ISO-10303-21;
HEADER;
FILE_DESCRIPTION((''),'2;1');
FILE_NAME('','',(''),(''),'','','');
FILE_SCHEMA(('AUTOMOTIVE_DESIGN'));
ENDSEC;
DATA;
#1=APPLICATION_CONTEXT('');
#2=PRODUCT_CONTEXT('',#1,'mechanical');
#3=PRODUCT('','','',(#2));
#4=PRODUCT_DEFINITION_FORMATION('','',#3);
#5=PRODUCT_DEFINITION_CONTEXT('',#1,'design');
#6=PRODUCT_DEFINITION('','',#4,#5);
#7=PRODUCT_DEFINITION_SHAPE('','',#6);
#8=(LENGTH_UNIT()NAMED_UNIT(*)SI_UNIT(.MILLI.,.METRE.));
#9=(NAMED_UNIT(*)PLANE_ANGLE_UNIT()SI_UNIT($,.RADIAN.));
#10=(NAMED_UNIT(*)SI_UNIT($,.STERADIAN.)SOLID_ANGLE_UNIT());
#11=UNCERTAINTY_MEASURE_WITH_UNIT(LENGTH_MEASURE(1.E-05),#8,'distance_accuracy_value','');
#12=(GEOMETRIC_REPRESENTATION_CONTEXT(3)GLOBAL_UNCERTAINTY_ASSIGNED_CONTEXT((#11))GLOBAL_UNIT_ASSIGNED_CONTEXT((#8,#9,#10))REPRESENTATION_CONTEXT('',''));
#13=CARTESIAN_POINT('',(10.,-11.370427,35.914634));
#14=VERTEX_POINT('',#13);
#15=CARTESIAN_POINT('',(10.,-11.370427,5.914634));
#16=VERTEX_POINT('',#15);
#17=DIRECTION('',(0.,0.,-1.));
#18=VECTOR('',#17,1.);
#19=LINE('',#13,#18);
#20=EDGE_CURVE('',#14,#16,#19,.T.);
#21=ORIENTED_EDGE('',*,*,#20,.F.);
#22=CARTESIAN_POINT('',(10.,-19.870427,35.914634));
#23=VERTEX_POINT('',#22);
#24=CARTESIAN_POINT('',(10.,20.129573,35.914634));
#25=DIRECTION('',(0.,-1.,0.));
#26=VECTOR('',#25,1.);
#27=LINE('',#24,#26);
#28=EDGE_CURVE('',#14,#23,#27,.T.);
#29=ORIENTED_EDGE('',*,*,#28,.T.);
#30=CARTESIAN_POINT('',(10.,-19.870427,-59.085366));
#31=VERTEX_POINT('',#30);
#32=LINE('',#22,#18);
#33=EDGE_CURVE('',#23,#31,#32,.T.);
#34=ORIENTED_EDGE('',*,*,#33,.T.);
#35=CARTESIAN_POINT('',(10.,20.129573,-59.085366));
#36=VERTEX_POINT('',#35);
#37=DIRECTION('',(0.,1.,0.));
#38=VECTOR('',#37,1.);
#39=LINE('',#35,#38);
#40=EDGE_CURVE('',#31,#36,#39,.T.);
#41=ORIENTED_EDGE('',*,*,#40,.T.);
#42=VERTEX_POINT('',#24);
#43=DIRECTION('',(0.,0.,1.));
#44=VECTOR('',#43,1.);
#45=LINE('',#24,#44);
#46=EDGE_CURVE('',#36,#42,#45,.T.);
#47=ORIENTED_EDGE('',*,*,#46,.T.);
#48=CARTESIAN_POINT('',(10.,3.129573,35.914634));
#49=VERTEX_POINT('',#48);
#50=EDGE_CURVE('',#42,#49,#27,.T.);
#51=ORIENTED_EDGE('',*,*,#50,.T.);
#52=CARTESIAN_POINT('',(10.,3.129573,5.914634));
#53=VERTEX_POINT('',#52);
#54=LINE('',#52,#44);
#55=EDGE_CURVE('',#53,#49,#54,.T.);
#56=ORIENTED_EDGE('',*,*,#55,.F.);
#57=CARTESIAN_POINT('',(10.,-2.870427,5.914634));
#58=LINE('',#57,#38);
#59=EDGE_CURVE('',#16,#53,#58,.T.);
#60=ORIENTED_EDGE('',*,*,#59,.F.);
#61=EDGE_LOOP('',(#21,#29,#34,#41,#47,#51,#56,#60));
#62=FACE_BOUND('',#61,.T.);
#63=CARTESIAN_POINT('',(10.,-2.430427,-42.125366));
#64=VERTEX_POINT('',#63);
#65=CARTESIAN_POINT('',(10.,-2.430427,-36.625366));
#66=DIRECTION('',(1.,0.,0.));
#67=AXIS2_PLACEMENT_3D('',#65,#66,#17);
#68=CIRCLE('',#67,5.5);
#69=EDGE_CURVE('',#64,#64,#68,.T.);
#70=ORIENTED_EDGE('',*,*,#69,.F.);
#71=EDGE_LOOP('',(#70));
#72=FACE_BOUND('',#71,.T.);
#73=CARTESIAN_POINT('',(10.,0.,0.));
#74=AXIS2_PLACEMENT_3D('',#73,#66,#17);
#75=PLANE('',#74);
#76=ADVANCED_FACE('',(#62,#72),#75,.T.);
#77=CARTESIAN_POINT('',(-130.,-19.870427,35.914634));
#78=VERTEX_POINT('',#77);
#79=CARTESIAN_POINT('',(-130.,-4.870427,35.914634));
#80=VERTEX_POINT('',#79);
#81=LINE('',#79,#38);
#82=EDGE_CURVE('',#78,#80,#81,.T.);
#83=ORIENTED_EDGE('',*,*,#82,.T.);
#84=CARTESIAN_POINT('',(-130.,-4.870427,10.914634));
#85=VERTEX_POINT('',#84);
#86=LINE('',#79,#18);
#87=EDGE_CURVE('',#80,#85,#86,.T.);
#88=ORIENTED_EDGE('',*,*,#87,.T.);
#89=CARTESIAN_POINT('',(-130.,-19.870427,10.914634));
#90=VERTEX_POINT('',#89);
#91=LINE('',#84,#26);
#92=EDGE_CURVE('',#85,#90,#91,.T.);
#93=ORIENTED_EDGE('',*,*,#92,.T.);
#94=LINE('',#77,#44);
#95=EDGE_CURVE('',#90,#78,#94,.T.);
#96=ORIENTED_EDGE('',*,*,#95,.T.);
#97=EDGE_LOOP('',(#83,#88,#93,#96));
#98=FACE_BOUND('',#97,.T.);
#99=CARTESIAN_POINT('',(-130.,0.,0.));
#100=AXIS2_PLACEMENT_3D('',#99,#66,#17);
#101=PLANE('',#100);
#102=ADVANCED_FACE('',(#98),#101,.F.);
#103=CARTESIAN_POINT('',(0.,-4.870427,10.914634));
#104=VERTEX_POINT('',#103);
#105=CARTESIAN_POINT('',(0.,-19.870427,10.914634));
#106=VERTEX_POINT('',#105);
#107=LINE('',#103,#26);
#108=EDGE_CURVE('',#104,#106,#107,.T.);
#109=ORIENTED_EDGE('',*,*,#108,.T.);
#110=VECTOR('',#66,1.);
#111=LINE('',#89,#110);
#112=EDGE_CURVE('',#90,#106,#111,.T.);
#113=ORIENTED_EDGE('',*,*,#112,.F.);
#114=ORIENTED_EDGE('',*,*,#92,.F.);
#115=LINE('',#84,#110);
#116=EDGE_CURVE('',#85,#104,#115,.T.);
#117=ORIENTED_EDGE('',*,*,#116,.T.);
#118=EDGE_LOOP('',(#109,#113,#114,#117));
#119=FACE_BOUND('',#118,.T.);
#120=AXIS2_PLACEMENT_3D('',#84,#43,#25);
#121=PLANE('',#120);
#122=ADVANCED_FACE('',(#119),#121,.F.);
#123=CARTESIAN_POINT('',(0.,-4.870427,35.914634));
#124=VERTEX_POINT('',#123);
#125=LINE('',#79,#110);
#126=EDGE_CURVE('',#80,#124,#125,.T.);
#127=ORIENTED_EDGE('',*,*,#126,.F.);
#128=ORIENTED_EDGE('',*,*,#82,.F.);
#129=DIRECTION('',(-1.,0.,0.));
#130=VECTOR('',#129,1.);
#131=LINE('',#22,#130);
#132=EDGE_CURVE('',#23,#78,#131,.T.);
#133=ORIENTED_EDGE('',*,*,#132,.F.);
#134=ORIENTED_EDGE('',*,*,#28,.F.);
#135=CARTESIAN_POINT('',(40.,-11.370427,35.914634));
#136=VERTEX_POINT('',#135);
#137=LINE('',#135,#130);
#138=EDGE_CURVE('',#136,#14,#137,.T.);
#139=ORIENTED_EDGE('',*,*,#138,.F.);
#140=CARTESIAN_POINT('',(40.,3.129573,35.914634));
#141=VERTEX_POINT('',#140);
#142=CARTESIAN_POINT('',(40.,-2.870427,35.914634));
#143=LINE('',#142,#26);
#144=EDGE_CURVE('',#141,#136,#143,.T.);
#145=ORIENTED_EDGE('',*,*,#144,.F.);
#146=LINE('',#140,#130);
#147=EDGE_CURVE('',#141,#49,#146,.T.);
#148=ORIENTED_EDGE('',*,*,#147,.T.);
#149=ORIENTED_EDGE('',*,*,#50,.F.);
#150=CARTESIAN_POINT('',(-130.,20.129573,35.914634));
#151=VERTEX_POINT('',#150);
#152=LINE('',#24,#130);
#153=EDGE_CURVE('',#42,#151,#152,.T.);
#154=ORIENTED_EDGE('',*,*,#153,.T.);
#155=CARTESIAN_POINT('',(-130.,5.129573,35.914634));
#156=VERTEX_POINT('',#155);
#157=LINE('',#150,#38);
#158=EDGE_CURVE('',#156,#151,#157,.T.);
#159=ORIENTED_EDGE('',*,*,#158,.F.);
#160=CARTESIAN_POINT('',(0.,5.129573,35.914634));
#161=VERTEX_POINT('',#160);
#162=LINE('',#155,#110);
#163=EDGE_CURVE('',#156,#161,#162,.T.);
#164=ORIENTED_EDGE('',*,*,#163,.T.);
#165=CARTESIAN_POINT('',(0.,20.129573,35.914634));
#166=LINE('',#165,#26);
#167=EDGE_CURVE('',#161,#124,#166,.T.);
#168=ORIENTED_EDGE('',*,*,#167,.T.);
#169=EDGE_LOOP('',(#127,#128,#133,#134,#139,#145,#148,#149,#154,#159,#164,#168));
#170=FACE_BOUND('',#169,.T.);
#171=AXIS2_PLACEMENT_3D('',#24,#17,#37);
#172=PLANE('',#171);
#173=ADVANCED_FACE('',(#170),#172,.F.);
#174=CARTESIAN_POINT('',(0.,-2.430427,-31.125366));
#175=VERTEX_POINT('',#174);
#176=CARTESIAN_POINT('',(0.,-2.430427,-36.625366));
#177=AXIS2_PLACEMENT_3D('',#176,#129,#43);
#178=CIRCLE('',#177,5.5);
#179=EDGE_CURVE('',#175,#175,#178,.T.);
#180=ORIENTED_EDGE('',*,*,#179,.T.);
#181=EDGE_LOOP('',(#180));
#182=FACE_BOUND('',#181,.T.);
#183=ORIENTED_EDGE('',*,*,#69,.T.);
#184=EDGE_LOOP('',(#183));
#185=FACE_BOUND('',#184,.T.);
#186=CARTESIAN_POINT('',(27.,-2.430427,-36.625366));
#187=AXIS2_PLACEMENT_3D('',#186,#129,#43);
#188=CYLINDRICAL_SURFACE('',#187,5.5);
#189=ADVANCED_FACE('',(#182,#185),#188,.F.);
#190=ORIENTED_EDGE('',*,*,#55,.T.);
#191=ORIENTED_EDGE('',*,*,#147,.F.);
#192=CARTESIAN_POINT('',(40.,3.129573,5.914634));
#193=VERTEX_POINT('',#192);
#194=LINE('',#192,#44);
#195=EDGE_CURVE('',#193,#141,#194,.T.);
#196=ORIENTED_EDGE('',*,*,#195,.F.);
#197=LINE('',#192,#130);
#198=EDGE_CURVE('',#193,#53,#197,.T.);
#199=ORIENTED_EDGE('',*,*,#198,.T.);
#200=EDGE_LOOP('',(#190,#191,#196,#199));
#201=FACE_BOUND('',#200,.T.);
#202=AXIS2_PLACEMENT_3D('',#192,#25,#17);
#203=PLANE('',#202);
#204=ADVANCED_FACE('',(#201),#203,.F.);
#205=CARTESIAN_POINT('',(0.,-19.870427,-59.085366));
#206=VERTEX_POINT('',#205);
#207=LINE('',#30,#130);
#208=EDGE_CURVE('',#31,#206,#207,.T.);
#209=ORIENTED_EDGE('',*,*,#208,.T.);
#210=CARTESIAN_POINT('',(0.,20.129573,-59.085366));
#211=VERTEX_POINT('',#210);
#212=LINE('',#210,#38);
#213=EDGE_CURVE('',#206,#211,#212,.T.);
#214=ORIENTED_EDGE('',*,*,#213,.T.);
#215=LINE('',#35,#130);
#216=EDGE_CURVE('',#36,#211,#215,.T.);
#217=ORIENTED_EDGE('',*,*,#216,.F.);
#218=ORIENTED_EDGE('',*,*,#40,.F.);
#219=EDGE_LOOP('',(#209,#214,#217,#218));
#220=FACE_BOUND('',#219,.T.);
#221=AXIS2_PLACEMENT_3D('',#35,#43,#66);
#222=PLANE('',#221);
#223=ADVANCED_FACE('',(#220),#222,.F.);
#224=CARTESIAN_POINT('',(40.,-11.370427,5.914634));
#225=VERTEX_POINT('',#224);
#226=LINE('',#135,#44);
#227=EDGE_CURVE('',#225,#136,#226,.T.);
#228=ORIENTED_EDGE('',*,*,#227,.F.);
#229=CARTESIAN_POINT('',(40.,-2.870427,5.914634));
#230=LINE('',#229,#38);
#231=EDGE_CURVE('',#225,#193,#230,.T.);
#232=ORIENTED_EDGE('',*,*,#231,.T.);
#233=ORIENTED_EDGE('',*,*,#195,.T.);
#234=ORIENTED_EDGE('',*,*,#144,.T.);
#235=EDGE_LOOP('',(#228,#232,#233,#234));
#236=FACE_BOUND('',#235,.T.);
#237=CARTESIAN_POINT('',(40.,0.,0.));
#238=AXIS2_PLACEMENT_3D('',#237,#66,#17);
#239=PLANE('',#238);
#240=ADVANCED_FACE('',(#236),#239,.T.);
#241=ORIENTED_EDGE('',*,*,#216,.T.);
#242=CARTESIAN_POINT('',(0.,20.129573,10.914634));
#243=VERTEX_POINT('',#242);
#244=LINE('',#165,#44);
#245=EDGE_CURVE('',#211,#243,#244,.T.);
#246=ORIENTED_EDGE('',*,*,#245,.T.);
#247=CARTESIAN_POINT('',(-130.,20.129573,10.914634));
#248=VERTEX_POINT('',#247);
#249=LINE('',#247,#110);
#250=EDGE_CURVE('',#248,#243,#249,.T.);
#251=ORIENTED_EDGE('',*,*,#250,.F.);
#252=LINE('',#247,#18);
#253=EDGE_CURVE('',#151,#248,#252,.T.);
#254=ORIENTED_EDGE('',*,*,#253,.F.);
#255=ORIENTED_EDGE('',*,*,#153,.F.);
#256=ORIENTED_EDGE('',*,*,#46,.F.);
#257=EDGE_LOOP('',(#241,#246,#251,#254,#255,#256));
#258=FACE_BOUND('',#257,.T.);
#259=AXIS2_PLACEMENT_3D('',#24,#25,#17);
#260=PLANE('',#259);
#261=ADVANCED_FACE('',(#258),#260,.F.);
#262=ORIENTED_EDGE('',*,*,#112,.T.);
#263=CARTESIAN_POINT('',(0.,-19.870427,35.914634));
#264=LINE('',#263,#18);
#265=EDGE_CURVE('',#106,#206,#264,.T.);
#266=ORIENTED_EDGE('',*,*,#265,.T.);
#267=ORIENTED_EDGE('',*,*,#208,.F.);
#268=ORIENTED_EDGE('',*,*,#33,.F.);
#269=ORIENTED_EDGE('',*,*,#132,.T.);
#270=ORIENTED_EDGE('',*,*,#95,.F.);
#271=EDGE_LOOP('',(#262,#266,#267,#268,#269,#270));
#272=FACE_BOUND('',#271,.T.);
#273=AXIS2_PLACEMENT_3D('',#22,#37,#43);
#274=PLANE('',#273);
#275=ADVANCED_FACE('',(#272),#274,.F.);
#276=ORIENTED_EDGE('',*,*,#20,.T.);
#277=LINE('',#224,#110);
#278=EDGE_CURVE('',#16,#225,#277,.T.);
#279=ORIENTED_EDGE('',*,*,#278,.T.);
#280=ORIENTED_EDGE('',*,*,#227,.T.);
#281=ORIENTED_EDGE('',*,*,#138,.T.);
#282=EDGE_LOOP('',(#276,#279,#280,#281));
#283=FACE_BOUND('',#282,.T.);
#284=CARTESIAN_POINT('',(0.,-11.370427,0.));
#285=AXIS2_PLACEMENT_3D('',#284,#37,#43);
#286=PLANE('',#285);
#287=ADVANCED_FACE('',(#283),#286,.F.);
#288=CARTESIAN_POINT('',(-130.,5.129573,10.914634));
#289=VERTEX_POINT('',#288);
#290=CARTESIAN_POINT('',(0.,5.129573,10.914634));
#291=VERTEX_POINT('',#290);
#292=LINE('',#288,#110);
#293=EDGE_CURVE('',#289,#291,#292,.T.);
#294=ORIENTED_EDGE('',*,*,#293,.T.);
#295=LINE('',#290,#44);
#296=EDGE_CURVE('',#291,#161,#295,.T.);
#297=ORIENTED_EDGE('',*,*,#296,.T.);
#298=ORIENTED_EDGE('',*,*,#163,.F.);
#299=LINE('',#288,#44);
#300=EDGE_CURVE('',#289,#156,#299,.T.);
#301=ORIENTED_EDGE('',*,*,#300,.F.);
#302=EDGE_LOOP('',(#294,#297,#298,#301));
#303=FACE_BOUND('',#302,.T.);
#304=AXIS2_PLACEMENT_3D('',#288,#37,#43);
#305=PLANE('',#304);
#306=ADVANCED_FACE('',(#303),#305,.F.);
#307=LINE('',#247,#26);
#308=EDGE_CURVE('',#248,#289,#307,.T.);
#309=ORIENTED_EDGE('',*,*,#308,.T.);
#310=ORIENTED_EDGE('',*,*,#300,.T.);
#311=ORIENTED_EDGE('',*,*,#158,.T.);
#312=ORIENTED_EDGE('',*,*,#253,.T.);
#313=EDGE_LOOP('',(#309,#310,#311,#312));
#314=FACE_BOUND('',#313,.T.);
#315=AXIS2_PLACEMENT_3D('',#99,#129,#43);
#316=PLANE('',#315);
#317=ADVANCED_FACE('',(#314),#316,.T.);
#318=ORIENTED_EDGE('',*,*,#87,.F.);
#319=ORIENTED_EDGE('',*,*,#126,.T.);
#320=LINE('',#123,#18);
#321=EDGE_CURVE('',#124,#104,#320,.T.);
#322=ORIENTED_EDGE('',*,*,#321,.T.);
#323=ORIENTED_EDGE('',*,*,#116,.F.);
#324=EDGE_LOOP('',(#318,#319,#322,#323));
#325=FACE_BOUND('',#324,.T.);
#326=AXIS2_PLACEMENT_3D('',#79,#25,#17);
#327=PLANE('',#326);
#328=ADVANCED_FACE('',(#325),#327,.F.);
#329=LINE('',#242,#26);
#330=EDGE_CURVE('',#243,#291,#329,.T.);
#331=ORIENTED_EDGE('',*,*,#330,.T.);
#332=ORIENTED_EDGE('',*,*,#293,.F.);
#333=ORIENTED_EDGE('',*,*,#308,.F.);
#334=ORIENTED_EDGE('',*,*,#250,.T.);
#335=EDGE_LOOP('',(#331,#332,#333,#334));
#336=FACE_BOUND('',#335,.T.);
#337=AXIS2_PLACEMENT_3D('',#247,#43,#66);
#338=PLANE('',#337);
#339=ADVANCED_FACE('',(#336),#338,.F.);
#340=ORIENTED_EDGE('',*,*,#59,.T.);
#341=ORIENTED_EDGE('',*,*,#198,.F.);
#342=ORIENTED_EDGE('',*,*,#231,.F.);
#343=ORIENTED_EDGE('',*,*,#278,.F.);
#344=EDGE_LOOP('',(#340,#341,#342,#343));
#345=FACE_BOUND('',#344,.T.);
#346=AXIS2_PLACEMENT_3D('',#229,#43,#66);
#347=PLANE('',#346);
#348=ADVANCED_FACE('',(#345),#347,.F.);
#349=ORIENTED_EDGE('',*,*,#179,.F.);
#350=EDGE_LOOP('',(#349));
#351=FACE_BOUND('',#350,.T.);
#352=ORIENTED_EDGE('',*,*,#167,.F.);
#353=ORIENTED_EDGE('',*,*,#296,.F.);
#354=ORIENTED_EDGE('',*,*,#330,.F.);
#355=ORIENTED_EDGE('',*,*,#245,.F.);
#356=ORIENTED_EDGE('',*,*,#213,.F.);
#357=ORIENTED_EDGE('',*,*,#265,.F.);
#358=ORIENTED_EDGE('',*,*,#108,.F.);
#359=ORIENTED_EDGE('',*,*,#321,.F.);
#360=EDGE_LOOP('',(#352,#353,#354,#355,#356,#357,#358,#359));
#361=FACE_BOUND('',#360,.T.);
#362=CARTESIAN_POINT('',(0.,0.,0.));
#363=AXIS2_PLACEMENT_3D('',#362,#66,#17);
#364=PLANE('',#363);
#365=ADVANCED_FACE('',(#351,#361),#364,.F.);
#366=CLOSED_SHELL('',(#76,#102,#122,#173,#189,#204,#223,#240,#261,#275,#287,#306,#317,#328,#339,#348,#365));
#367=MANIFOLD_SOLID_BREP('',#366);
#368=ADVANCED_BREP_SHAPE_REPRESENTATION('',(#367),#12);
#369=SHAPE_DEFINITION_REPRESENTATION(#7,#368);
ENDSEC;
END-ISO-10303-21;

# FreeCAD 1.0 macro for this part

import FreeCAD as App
import Part
import Sketcher

V = App.Vector


def add_polygon(sketch, points):
    """Adds a closed chain of lines whose ends are joined by coincident constraints."""
    first, n = sketch.GeometryCount, len(points)
    for a, b in zip(points, points[1:] + points[:1]):
        sketch.addGeometry(Part.LineSegment(App.Vector(*a, 0), App.Vector(*b, 0)), False)
    for i in range(n):
        sketch.addConstraint(Sketcher.Constraint("Coincident", first + i, 2, first + (i + 1) % n, 1))

doc = App.newDocument("Part")
body = doc.addObject("PartDesign::Body", "Body")

sketch1 = body.newObject("Sketcher::SketchObject", "Sketch")
sketch1.AttachmentSupport = (doc.getObject("YZ_Plane"), [""])
sketch1.MapMode = "FlatFace"
add_polygon(sketch1, [(20.129573, 35.914634), (-19.870427, 35.914634), (-19.870427, -59.085366), (20.129573, -59.085366)])
sketch1.addConstraint([
    Sketcher.Constraint("Horizontal", 0),
    Sketcher.Constraint("Vertical", 1),
    Sketcher.Constraint("Horizontal", 2),
    Sketcher.Constraint("Vertical", 3),
    Sketcher.Constraint("DistanceX", 0, 2, 0, 1, 40.0),
    Sketcher.Constraint("DistanceY", 1, 2, 1, 1, 95.0),
    Sketcher.Constraint("DistanceX", 0, 2, -1, 1, 19.870427),
    Sketcher.Constraint("DistanceY", -1, 1, 0, 2, 35.914634),
])
pad1 = body.newObject("PartDesign::Pad", "Pad")
pad1.Profile = sketch1
pad1.Length = 10

sketch2 = body.newObject("Sketcher::SketchObject", "Sketch001")
sketch2.AttachmentSupport = (doc.getObject("YZ_Plane"), [""])
sketch2.MapMode = "FlatFace"
add_polygon(sketch2, [(20.129573, 10.914634), (5.129573, 10.914634), (5.129573, 35.914634), (20.129573, 35.914634)])
add_polygon(sketch2, [(-4.870427, 10.914634), (-19.870427, 10.914634), (-19.870427, 35.914634), (-4.870427, 35.914634)])
sketch2.addConstraint([
    Sketcher.Constraint("Horizontal", 0),
    Sketcher.Constraint("Vertical", 1),
    Sketcher.Constraint("Horizontal", 2),
    Sketcher.Constraint("Vertical", 3),
    Sketcher.Constraint("Horizontal", 4),
    Sketcher.Constraint("Vertical", 5),
    Sketcher.Constraint("Horizontal", 6),
    Sketcher.Constraint("Vertical", 7),
    Sketcher.Constraint("Horizontal", 3, 2, 4, 2),
    Sketcher.Constraint("Horizontal", 2, 2, 5, 2),
    Sketcher.Constraint("Equal", 2, 4),
    Sketcher.Constraint("DistanceX", 0, 2, 0, 1, 15.0),
    Sketcher.Constraint("DistanceY", 1, 1, 1, 2, 25.0),
    Sketcher.Constraint("DistanceX", 4, 2, 0, 2, 25.0),
    Sketcher.Constraint("DistanceX", -1, 1, 0, 2, 5.129573),
    Sketcher.Constraint("DistanceY", -1, 1, 0, 2, 10.914634),
])
pad2 = body.newObject("PartDesign::Pad", "Pad001")
pad2.Profile = sketch2
pad2.Length = 130
pad2.Reversed = True

sketch3 = body.newObject("Sketcher::SketchObject", "Sketch002")
sketch3.AttachmentSupport = (doc.getObject("YZ_Plane"), [""])
sketch3.MapMode = "FlatFace"
sketch3.addGeometry(Part.Circle(V(-2.430427, -36.625366, 0), V(0, 0, 1), 5.5), False)
sketch3.addConstraint([
    Sketcher.Constraint("Diameter", 0, 11.0),
    Sketcher.Constraint("DistanceX", 0, 3, -1, 1, 2.430427),
    Sketcher.Constraint("DistanceY", 0, 3, -1, 1, 36.625366),
])
pocket1 = body.newObject("PartDesign::Pocket", "Pocket")
pocket1.Profile = sketch3
pocket1.Length = 27
pocket1.Reversed = True

sketch4 = body.newObject("Sketcher::SketchObject", "Sketch003")
sketch4.AttachmentSupport = (doc.getObject("YZ_Plane"), [""])
sketch4.MapMode = "FlatFace"
sketch4.AttachmentOffset = App.Placement(V(0, 0, 10), App.Rotation())
add_polygon(sketch4, [(3.129573, 35.914634), (-2.870427, 35.914634), (-2.870427, 5.914634), (3.129573, 5.914634)])
sketch4.addConstraint([
    Sketcher.Constraint("Horizontal", 0),
    Sketcher.Constraint("Vertical", 1),
    Sketcher.Constraint("Horizontal", 2),
    Sketcher.Constraint("Vertical", 3),
    Sketcher.Constraint("DistanceX", 0, 2, 0, 1, 6.0),
    Sketcher.Constraint("DistanceY", 1, 2, 1, 1, 30.0),
    Sketcher.Constraint("DistanceX", 0, 2, -1, 1, 2.870427),
    Sketcher.Constraint("DistanceY", -1, 1, 0, 2, 35.914634),
])
pad3 = body.newObject("PartDesign::Pad", "Pad002")
pad3.Profile = sketch4
pad3.Length = 30

sketch5 = body.newObject("Sketcher::SketchObject", "Sketch004")
sketch5.AttachmentSupport = (doc.getObject("XZ_Plane"), [""])
sketch5.MapMode = "FlatFace"
sketch5.AttachmentOffset = App.Placement(V(0, 0, 2.870427), App.Rotation())
add_polygon(sketch5, [(10, 35.914634), (10, 5.914634), (40, 5.914634), (40, 35.914634)])
sketch5.addConstraint([
    Sketcher.Constraint("Vertical", 0),
    Sketcher.Constraint("Horizontal", 1),
    Sketcher.Constraint("Vertical", 2),
    Sketcher.Constraint("Horizontal", 3),
    Sketcher.Constraint("Equal", 3, 0),
    Sketcher.Constraint("DistanceX", 1, 1, 1, 2, 30.0),
    Sketcher.Constraint("DistanceX", -1, 1, 0, 2, 10.0),
    Sketcher.Constraint("DistanceY", -1, 1, 0, 2, 5.914634),
])
pad4 = body.newObject("PartDesign::Pad", "Pad003")
pad4.Profile = sketch5
pad4.Length = 8.5

doc.recompute()
